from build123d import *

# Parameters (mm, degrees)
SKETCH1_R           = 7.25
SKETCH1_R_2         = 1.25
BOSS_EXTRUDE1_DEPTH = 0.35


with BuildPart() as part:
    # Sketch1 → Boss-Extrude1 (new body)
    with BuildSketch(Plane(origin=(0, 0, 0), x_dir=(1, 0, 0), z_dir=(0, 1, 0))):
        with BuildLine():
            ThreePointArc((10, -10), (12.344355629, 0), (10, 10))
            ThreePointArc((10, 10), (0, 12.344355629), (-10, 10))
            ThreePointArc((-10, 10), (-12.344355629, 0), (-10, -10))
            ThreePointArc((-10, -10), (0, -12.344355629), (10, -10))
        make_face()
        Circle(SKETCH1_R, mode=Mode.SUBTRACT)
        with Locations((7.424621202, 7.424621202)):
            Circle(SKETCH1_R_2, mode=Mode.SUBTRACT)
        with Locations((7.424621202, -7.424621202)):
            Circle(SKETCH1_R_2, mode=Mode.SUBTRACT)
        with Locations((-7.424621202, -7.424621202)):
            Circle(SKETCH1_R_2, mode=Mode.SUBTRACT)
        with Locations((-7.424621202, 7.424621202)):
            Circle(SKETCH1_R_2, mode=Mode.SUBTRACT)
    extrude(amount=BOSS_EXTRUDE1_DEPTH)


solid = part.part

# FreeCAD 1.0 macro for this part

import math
import FreeCAD as App
import Part
import Sketcher
from FreeCAD import Vector
Q = App.Units.Quantity

doc = App.newDocument("Part")
body = doc.addObject("PartDesign::Body", "Body")

# Sketch on XZ plane
sketch1 = body.newObject("Sketcher::SketchObject", "Sketch")
sketch1.AttachmentSupport = (doc.getObject("XZ_Plane"), [""])
sketch1.MapMode = "FlatFace"
sketch1.addGeometry([
    Part.ArcOfCircle(Part.Circle(Vector(-10.155644, 0, 0), Vector(0, 0, 1), 22.5), math.radians(-26.3878), math.radians(26.3878)),  # 0
    Part.ArcOfCircle(Part.Circle(Vector(0, 10.155644, 0), Vector(0, 0, 1), 22.5), math.radians(-116.3878), math.radians(-63.6122)),  # 1
    Part.ArcOfCircle(Part.Circle(Vector(10.155644, 0, 0), Vector(0, 0, 1), 22.5), math.radians(153.6122), math.radians(206.3878)),  # 2
    Part.ArcOfCircle(Part.Circle(Vector(0, -10.155644, 0), Vector(0, 0, 1), 22.5), math.radians(63.6122), math.radians(116.3878)),  # 3
    Part.Circle(Vector(-7.424621, 7.424621, 0), Vector(0, 0, 1), 1.25),  # 4
    Part.Circle(Vector(7.424621, 7.424621, 0), Vector(0, 0, 1), 1.25),  # 5
    Part.Circle(Vector(-7.424621, -7.424621, 0), Vector(0, 0, 1), 1.25),  # 6
    Part.Circle(Vector(0, 0, 0), Vector(0, 0, 1), 7.25),  # 7
    Part.Circle(Vector(7.424621, -7.424621, 0), Vector(0, 0, 1), 1.25),  # 8
], False)
sketch1.addConstraint([
    Sketcher.Constraint("Coincident", 0, 1, 1, 2),
    Sketcher.Constraint("Coincident", 1, 1, 2, 2),
    Sketcher.Constraint("Coincident", 2, 1, 3, 2),
    Sketcher.Constraint("Coincident", 3, 1, 0, 2),
    Sketcher.Constraint("Coincident", 7, 3, -1, 1),
    Sketcher.Constraint("Equal", 0, 1),
    Sketcher.Constraint("Equal", 1, 2),
    Sketcher.Constraint("Equal", 2, 3),
    Sketcher.Constraint("Equal", 4, 5),
    Sketcher.Constraint("Equal", 5, 6),
    Sketcher.Constraint("Equal", 6, 8),
    Sketcher.Constraint("Symmetric", 0, 3, 2, 3, -1, 1),
    Sketcher.Constraint("Symmetric", 1, 3, 3, 3, -1, 1),
    Sketcher.Constraint("Symmetric", 5, 3, 6, 3, -1, 1),
    Sketcher.Constraint("Symmetric", 4, 3, 8, 3, -1, 1),
    Sketcher.Constraint("Symmetric", 4, 3, 5, 3, -2),
    Sketcher.Constraint("Symmetric", 0, 1, 1, 1, -2),
    Sketcher.Constraint("Diameter", 4, Q("2.5 mm")),
    Sketcher.Constraint("Diameter", 7, Q("14.5 mm")),
    Sketcher.Constraint("Radius", 0, Q("22.5 mm")),
    Sketcher.Constraint("DistanceX", -1, 1, 0, 1, Q("10 mm")),
    Sketcher.Constraint("DistanceY", 0, 1, -1, 1, Q("10 mm")),
    Sketcher.Constraint("DistanceX", 4, 3, -1, 1, Q("7.424621 mm")),
    Sketcher.Constraint("DistanceY", -1, 1, 4, 3, Q("7.424621 mm")),
])
pad1 = body.newObject("PartDesign::Pad", "Pad")
pad1.Profile = sketch1
pad1.Length = 0.35
pad1.Reversed = True

doc.recompute()
